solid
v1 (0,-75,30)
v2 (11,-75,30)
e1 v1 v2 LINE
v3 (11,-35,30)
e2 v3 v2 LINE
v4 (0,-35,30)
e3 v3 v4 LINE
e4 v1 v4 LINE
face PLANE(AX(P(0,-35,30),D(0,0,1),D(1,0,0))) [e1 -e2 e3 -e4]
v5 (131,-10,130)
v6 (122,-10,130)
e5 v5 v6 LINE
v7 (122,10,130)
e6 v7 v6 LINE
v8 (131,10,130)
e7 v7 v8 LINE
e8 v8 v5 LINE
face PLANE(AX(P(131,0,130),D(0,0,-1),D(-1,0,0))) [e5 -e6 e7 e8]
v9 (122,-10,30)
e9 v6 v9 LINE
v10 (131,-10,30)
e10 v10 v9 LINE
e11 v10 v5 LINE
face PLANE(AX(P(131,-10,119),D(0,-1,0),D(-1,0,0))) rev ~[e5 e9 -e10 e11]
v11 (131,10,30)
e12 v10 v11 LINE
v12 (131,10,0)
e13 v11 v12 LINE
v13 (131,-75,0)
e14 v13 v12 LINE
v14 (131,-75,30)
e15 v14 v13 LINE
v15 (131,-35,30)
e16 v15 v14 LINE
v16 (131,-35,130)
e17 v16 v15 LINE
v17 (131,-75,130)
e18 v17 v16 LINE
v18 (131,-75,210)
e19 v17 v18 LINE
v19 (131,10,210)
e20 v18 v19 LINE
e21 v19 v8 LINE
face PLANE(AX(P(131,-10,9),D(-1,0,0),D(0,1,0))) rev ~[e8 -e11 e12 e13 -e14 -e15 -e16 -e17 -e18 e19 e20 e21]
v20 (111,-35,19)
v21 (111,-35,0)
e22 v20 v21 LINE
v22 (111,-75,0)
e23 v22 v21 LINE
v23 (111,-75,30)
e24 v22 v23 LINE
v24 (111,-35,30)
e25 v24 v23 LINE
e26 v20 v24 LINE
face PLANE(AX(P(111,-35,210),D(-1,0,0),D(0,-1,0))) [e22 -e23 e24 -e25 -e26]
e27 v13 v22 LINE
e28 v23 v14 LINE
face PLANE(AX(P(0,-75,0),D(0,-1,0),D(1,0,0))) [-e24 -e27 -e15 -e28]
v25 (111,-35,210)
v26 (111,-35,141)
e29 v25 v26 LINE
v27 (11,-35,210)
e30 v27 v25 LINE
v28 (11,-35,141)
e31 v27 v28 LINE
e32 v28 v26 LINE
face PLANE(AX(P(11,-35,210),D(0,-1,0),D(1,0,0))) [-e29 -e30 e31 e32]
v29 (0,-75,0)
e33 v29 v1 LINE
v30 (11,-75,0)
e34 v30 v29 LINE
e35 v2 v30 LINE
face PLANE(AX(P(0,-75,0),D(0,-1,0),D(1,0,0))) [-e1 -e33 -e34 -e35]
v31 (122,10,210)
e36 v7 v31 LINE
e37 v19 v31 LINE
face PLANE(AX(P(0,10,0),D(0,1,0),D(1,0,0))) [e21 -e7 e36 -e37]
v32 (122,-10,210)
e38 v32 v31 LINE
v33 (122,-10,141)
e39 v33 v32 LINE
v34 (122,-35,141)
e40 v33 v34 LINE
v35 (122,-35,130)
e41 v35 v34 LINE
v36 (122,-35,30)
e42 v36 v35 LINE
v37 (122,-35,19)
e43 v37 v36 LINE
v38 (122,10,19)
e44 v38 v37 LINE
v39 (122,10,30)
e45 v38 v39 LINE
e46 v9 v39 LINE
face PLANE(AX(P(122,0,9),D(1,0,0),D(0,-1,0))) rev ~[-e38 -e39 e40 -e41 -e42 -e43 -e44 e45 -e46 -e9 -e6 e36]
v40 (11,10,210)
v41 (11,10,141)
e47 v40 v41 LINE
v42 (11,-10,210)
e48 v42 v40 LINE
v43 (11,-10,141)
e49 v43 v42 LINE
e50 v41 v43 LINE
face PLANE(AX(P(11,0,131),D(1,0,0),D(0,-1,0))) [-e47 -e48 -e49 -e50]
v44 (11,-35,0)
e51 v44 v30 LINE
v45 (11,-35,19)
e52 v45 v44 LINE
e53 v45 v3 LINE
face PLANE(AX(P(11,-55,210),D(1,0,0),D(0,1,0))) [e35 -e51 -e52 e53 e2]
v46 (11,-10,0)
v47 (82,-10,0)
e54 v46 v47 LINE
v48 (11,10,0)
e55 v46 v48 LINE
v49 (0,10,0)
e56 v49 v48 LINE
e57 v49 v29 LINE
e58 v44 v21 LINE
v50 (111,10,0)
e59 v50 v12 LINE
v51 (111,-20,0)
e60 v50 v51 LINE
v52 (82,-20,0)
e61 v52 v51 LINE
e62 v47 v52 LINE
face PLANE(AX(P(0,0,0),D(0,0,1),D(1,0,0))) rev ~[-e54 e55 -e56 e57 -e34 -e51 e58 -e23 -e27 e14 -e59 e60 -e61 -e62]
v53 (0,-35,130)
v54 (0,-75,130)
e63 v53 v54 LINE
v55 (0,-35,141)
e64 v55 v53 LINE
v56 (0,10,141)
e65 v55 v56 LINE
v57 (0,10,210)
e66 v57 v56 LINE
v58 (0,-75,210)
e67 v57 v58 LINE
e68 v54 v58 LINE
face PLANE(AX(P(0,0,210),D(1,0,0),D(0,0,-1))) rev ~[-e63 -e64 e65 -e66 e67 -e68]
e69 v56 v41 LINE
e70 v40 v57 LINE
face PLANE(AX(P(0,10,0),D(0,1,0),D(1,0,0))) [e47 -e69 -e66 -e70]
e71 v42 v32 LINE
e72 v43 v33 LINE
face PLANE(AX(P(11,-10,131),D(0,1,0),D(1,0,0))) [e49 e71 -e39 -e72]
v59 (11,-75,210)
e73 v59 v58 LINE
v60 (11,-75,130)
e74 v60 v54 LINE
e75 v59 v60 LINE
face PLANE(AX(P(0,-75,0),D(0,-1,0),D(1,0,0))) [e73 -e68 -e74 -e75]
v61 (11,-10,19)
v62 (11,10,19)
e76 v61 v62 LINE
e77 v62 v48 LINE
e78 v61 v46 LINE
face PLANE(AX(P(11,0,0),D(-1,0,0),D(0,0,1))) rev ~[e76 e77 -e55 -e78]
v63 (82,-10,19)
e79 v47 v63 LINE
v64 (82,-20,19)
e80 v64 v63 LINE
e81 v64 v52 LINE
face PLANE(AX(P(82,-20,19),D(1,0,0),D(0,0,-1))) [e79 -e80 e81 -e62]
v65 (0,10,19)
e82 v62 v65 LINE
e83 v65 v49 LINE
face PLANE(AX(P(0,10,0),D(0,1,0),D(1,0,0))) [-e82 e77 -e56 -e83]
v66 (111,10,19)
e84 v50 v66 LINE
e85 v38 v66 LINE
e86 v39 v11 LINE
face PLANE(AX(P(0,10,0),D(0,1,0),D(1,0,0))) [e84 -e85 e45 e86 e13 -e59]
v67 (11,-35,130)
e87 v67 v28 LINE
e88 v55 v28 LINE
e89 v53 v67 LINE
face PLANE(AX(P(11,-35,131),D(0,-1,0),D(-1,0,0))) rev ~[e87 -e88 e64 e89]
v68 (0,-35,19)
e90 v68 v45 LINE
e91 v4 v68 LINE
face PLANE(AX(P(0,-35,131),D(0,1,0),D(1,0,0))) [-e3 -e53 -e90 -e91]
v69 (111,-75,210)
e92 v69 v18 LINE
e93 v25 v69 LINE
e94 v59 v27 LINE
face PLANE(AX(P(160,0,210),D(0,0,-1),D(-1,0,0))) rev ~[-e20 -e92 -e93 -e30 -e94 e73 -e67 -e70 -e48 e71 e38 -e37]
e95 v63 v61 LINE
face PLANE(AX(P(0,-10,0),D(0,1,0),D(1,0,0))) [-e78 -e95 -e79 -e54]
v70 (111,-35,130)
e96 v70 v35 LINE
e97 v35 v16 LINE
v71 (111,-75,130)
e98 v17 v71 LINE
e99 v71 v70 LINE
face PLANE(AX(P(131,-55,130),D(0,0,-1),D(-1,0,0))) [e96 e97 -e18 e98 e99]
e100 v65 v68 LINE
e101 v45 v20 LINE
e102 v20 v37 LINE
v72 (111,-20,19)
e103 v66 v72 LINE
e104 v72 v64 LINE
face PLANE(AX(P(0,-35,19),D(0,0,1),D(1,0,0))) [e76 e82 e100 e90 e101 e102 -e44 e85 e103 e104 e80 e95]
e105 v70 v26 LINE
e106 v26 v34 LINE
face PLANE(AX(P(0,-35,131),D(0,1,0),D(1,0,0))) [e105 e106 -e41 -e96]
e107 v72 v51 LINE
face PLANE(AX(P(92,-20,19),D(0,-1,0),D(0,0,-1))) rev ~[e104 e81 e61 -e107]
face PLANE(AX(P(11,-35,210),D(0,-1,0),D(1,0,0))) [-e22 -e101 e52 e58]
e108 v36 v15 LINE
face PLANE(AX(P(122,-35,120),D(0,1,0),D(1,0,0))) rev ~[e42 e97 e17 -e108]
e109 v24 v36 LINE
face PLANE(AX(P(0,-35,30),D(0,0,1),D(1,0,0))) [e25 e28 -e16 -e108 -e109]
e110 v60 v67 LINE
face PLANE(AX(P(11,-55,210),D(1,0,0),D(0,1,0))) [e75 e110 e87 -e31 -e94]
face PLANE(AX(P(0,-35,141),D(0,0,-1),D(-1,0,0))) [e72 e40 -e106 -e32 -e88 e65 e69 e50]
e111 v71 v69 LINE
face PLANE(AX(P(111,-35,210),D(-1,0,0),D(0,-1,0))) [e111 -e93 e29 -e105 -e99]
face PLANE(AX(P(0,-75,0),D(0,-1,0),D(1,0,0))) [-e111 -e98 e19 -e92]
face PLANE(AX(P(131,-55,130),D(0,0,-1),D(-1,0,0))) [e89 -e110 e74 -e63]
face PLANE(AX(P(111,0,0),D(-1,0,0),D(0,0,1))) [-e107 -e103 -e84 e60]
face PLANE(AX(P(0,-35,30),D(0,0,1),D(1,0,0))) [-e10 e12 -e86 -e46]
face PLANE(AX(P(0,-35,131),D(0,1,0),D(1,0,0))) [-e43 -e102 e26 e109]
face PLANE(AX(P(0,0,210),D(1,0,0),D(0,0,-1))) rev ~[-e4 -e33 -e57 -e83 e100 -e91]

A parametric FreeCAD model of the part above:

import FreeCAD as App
import Part
import Sketcher
Q = App.Units.Quantity


def add_polygon(sketch, points):
    """Adds a closed chain of lines whose ends are joined by coincident constraints."""
    first, n = sketch.GeometryCount, len(points)
    for a, b in zip(points, points[1:] + points[:1]):
        sketch.addGeometry(Part.LineSegment(App.Vector(*a, 0), App.Vector(*b, 0)), False)
    for i in range(n):
        sketch.addConstraint(Sketcher.Constraint("Coincident", first + i, 2, first + (i + 1) % n, 1))

doc = App.newDocument("Part")
params = doc.addObject("Spreadsheet::Sheet", "Params")
for row, (alias, value) in enumerate([
    ("sketch1_width", "160 mm"),
    ("sketch1_height", "210 mm"),
    ("pad1_length", "55 mm"),
    ("sketch2_width", "10 mm"),
    ("sketch2_height", "122 mm"),
    ("pocket1_length", "122 mm"),
    ("sketch3_width", "55 mm"),
    ("sketch3_height", "210 mm"),
    ("pocket2_length", "29 mm"),
    ("sketch4_width", "122 mm"),
    ("pocket3_length", "25 mm"),
    ("sketch5_width", "100 mm"),
    ("pocket4_length", "20 mm"),
    ("sketch6_width", "11 mm"),
    ("sketch6_width2", "100 mm"),
    ("pocket5_length", "20 mm"),
    ("sketch7_width", "100 mm"),
    ("sketch7_width2", "9 mm"),
    ("sketch7_height", "110 mm"),
    ("pocket6_length", "10 mm"),
    ("sketch8_width", "9 mm"),
    ("sketch8_height", "10 mm"),
    ("pad2_length", "11 mm"),
    ("sketch9_width", "111 mm"),
    ("sketch9_height", "10 mm"),
    ("pocket7_length", "80 mm"),
    ("sketch10_width", "100 mm"),
    ("sketch10_height", "20 mm"),
    ("pocket8_length", "220 mm"),
    ("sketch11_height", "100 mm"),
    ("sketch11_width", "20 mm"),
    ("pocket9_length", "9 mm"),
    ("sketch12_width", "11 mm"),
    ("sketch12_width2", "122 mm"),
    ("sketch12_height", "35 mm"),
    ("sketch12_height2", "10 mm"),
    ("pad3_length", "10 mm"),
    ("sketch13_width", "11 mm"),
    ("sketch13_width2", "20 mm"),
    ("sketch13_width3", "9 mm"),
    ("sketch13_height", "10 mm"),
    ("pad4_length", "10 mm"),
    ("sketch14_width", "11 mm"),
    ("sketch14_width2", "111 mm"),
    ("sketch14_height", "10 mm"),
    ("sketch14_height2", "25 mm"),
    ("pocket10_length", "10 mm"),
    ("sketch15_width", "20 mm"),
    ("sketch15_width2", "11 mm"),
    ("pocket11_length", "10 mm"),
    ("sketch16_width", "9 mm"),
    ("sketch16_height", "10 mm"),
    ("pocket12_length", "11 mm"),
    ("sketch17_width", "19 mm"),
    ("sketch17_height", "10 mm"),
    ("pocket13_length", "19 mm"),
    ("sketch18_width", "10 mm"),
    ("sketch18_height", "19 mm"),
    ("pocket14_length", "10 mm"),
    ("sketch19_width", "11 mm"),
    ("sketch19_width2", "20 mm"),
    ("sketch19_height", "80 mm"),
    ("sketch19_height2", "30 mm"),
    ("pad5_length", "20 mm"),
    ("sketch20_width", "11 mm"),
    ("sketch20_width2", "9 mm"),
    ("sketch20_height", "19 mm"),
    ("sketch20_height2", "80 mm"),
    ("sketch20_height3", "69 mm"),
    ("pad6_length", "10 mm"),
], start=1):
    params.set(f"A{row}", alias)
    params.set(f"B{row}", "=" + value)
    params.setAlias(f"B{row}", alias)

body = doc.addObject("PartDesign::Body", "Body")

# Sketch on XZ plane
sketch1 = body.newObject("Sketcher::SketchObject", "Sketch")
sketch1.AttachmentSupport = (doc.getObject("XZ_Plane"), [""])
sketch1.MapMode = "FlatFace"
add_polygon(sketch1, [(160, 0), (0, 0), (0, 210), (160, 210)])  # lines 0-3
sketch1.addConstraint([
    Sketcher.Constraint("Horizontal", 0),
    Sketcher.Constraint("Vertical", 1),
    Sketcher.Constraint("Horizontal", 2),
    Sketcher.Constraint("Vertical", 3),
    Sketcher.Constraint("Coincident", 0, 2, -1, 1),
    Sketcher.Constraint("DistanceX", 0, 2, 0, 1, Q("160 mm")),
    Sketcher.Constraint("DistanceY", 1, 1, 1, 2, Q("210 mm")),
])
sketch1.setExpression("Constraints[9]", "Params.sketch1_width")
sketch1.setExpression("Constraints[10]", "Params.sketch1_height")
pad1 = body.newObject("PartDesign::Pad", "Pad")
pad1.Profile = sketch1
pad1.setExpression("Length", "Params.pad1_length")

# Sketch on YZ plane
sketch2 = body.newObject("Sketcher::SketchObject", "Sketch001")
sketch2.AttachmentSupport = (doc.getObject("YZ_Plane"), [""])
sketch2.MapMode = "FlatFace"
add_polygon(sketch2, [(0, 131), (0, 9), (-10, 9), (-10, 131)])  # lines 0-3
sketch2.addConstraint([
    Sketcher.Constraint("Vertical", 0),
    Sketcher.Constraint("Horizontal", 1),
    Sketcher.Constraint("Vertical", 2),
    Sketcher.Constraint("Horizontal", 3),
    Sketcher.Constraint("PointOnObject", 0, 2, -2),
    Sketcher.Constraint("DistanceX", 1, 2, 1, 1, Q("10 mm")),
    Sketcher.Constraint("DistanceY", 0, 2, 0, 1, Q("122 mm")),
    Sketcher.Constraint("DistanceY", -1, 1, 0, 2, Q("9 mm")),
])
sketch2.setExpression("Constraints[9]", "Params.sketch2_width")
sketch2.setExpression("Constraints[10]", "Params.sketch2_height")
pocket1 = body.newObject("PartDesign::Pocket", "Pocket")
pocket1.Profile = sketch2
pocket1.setExpression("Length", "Params.pocket1_length")
pocket1.Reversed = True

# Sketch on YZ plane
sketch3 = body.newObject("Sketcher::SketchObject", "Sketch002")
sketch3.AttachmentSupport = (doc.getObject("YZ_Plane"), [""])
sketch3.MapMode = "FlatFace"
sketch3.AttachmentOffset = App.Placement(App.Vector(0, 0, 160), App.Rotation())
add_polygon(sketch3, [(-55, 0), (0, 0), (0, 210), (-55, 210)])  # lines 0-3
sketch3.addConstraint([
    Sketcher.Constraint("Horizontal", 0),
    Sketcher.Constraint("Vertical", 1),
    Sketcher.Constraint("Horizontal", 2),
    Sketcher.Constraint("Vertical", 3),
    Sketcher.Constraint("Coincident", 0, 2, -1, 1),
    Sketcher.Constraint("DistanceX", 0, 1, 0, 2, Q("55 mm")),
    Sketcher.Constraint("DistanceY", 1, 1, 1, 2, Q("210 mm")),
])
sketch3.setExpression("Constraints[9]", "Params.sketch3_width")
sketch3.setExpression("Constraints[10]", "Params.sketch3_height")
pocket2 = body.newObject("PartDesign::Pocket", "Pocket001")
pocket2.Profile = sketch3
pocket2.setExpression("Length", "Params.pocket2_length")

# Sketch on XZ plane
sketch4 = body.newObject("Sketcher::SketchObject", "Sketch003")
sketch4.AttachmentSupport = (doc.getObject("XZ_Plane"), [""])
sketch4.MapMode = "FlatFace"
sketch4.AttachmentOffset = App.Placement(App.Vector(0, 0, 10), App.Rotation())
add_polygon(sketch4, [(122, 131), (122, 9), (0, 9), (0, 131)])  # lines 0-3
sketch4.addConstraint([
    Sketcher.Constraint("Vertical", 0),
    Sketcher.Constraint("Horizontal", 1),
    Sketcher.Constraint("Vertical", 2),
    Sketcher.Constraint("Horizontal", 3),
    Sketcher.Constraint("PointOnObject", 1, 2, -2),
    Sketcher.Constraint("Equal", 3, 0),
    Sketcher.Constraint("DistanceX", 1, 2, 1, 1, Q("122 mm")),
    Sketcher.Constraint("DistanceY", -1, 1, 0, 2, Q("9 mm")),
])
sketch4.setExpression("Constraints[10]", "Params.sketch4_width")
pocket3 = body.newObject("PartDesign::Pocket", "Pocket002")
pocket3.Profile = sketch4
pocket3.setExpression("Length", "Params.pocket3_length")
pocket3.Reversed = True

# Sketch on XZ plane
sketch5 = body.newObject("Sketcher::SketchObject", "Sketch004")
sketch5.AttachmentSupport = (doc.getObject("XZ_Plane"), [""])
sketch5.MapMode = "FlatFace"
sketch5.AttachmentOffset = App.Placement(App.Vector(0, 0, 35), App.Rotation())
add_polygon(sketch5, [(111, 20), (11, 20), (11, 120), (111, 120)])  # lines 0-3
sketch5.addConstraint([
    Sketcher.Constraint("Horizontal", 0),
    Sketcher.Constraint("Vertical", 1),
    Sketcher.Constraint("Horizontal", 2),
    Sketcher.Constraint("Vertical", 3),
    Sketcher.Constraint("Equal", 2, 1),
    Sketcher.Constraint("DistanceX", 0, 2, 0, 1, Q("100 mm")),
    Sketcher.Constraint("DistanceX", -1, 1, 0, 2, Q("11 mm")),
    Sketcher.Constraint("DistanceY", -1, 1, 0, 2, Q("20 mm")),
])
sketch5.setExpression("Constraints[9]", "Params.sketch5_width")
pocket4 = body.newObject("PartDesign::Pocket", "Pocket003")
pocket4.Profile = sketch5
pocket4.setExpression("Length", "Params.pocket4_length")
pocket4.Reversed = True

# Sketch on XZ plane
sketch6 = body.newObject("Sketcher::SketchObject", "Sketch005")
sketch6.AttachmentSupport = (doc.getObject("XZ_Plane"), [""])
sketch6.MapMode = "FlatFace"
sketch6.AttachmentOffset = App.Placement(App.Vector(0, 0, 35), App.Rotation())
add_polygon(sketch6, [(0, 120), (11, 120), (11, 20), (0, 20)])  # lines 0-3
add_polygon(sketch6, [(111, 120), (11, 120), (11, 131), (111, 131)])  # lines 4-7
add_polygon(sketch6, [(11, 9), (11, 20), (111, 20), (111, 9)])  # lines 8-11
add_polygon(sketch6, [(111, 20), (111, 120), (122, 120), (122, 20)])  # lines 12-15
sketch6.addConstraint([
    Sketcher.Constraint("Horizontal", 0),
    Sketcher.Constraint("Vertical", 1),
    Sketcher.Constraint("Horizontal", 2),
    Sketcher.Constraint("Vertical", 3),
    Sketcher.Constraint("Horizontal", 4),
    Sketcher.Constraint("Vertical", 5),
    Sketcher.Constraint("Horizontal", 6),
    Sketcher.Constraint("Vertical", 7),
    Sketcher.Constraint("Vertical", 8),
    Sketcher.Constraint("Horizontal", 9),
    Sketcher.Constraint("Vertical", 10),
    Sketcher.Constraint("Horizontal", 11),
    Sketcher.Constraint("Vertical", 12),
    Sketcher.Constraint("Horizontal", 13),
    Sketcher.Constraint("Vertical", 14),
    Sketcher.Constraint("Horizontal", 15),
    Sketcher.Constraint("Coincident", 4, 2, 0, 2),
    Sketcher.Constraint("Coincident", 8, 2, 1, 2),
    Sketcher.Constraint("Coincident", 12, 2, 7, 2),
    Sketcher.Constraint("Coincident", 15, 2, 9, 2),
    Sketcher.Constraint("PointOnObject", 2, 2, -2),
    Sketcher.Constraint("Equal", 2, 13),
    Sketcher.Constraint("Equal", 11, 1),
    Sketcher.Constraint("Equal", 15, 5),
    Sketcher.Constraint("Equal", 7, 8),
    Sketcher.Constraint("DistanceX", 0, 1, 0, 2, Q("11 mm")),
    Sketcher.Constraint("DistanceX", 4, 2, 4, 1, Q("100 mm")),
    Sketcher.Constraint("DistanceY", -1, 1, 0, 2, Q("120 mm")),
])
sketch6.setExpression("Constraints[41]", "Params.sketch6_width")
sketch6.setExpression("Constraints[42]", "Params.sketch6_width2")
pocket5 = body.newObject("PartDesign::Pocket", "Pocket004")
pocket5.Profile = sketch6
pocket5.setExpression("Length", "Params.pocket5_length")
pocket5.Reversed = True

# Sketch on XZ plane
sketch7 = body.newObject("Sketcher::SketchObject", "Sketch006")
sketch7.AttachmentSupport = (doc.getObject("XZ_Plane"), [""])
sketch7.MapMode = "FlatFace"
add_polygon(sketch7, [(111, 0), (11, 0), (11, 9), (111, 9)])  # lines 0-3
add_polygon(sketch7, [(131, 119), (131, 9), (122, 9), (122, 119)])  # lines 4-7
sketch7.addConstraint([
    Sketcher.Constraint("Horizontal", 0),
    Sketcher.Constraint("Vertical", 1),
    Sketcher.Constraint("Horizontal", 2),
    Sketcher.Constraint("Vertical", 3),
    Sketcher.Constraint("Vertical", 4),
    Sketcher.Constraint("Horizontal", 5),
    Sketcher.Constraint("Vertical", 6),
    Sketcher.Constraint("Horizontal", 7),
    Sketcher.Constraint("PointOnObject", 0, 2, -1),
    Sketcher.Constraint("Horizontal", 2, 2, 4, 2),
    Sketcher.Constraint("Equal", 7, 1),
    Sketcher.Constraint("DistanceX", 0, 2, 0, 1, Q("100 mm")),
    Sketcher.Constraint("DistanceX", 5, 2, 5, 1, Q("9 mm")),
    Sketcher.Constraint("DistanceY", 4, 2, 4, 1, Q("110 mm")),
    Sketcher.Constraint("DistanceX", 2, 2, 4, 2, Q("20 mm")),
    Sketcher.Constraint("DistanceX", -1, 1, 0, 2, Q("11 mm")),
])
sketch7.setExpression("Constraints[19]", "Params.sketch7_width")
sketch7.setExpression("Constraints[20]", "Params.sketch7_width2")
sketch7.setExpression("Constraints[21]", "Params.sketch7_height")
pocket6 = body.newObject("PartDesign::Pocket", "Pocket005")
pocket6.Profile = sketch7
pocket6.setExpression("Length", "Params.pocket6_length")
pocket6.Reversed = True

# Sketch on XY plane
sketch8 = body.newObject("Sketcher::SketchObject", "Sketch007")
sketch8.AttachmentSupport = (doc.getObject("XY_Plane"), [""])
sketch8.MapMode = "FlatFace"
sketch8.AttachmentOffset = App.Placement(App.Vector(0, 0, 9), App.Rotation())
add_polygon(sketch8, [(131, 0), (122, 0), (122, -10), (131, -10)])  # lines 0-3
sketch8.addConstraint([
    Sketcher.Constraint("Horizontal", 0),
    Sketcher.Constraint("Vertical", 1),
    Sketcher.Constraint("Horizontal", 2),
    Sketcher.Constraint("Vertical", 3),
    Sketcher.Constraint("PointOnObject", 0, 2, -1),
    Sketcher.Constraint("DistanceX", 0, 2, 0, 1, Q("9 mm")),
    Sketcher.Constraint("DistanceY", 1, 2, 1, 1, Q("10 mm")),
    Sketcher.Constraint("DistanceX", -1, 1, 0, 2, Q("122 mm")),
])
sketch8.setExpression("Constraints[9]", "Params.sketch8_width")
sketch8.setExpression("Constraints[10]", "Params.sketch8_height")
pad2 = body.newObject("PartDesign::Pad", "Pad001")
pad2.Profile = sketch8
pad2.setExpression("Length", "Params.pad2_length")

# Sketch on XY plane
sketch9 = body.newObject("Sketcher::SketchObject", "Sketch008")
sketch9.AttachmentSupport = (doc.getObject("XY_Plane"), [""])
sketch9.MapMode = "FlatFace"
sketch9.AttachmentOffset = App.Placement(App.Vector(0, 0, 131), App.Rotation())
add_polygon(sketch9, [(11, 0), (122, 0), (122, -10), (11, -10)])  # lines 0-3
sketch9.addConstraint([
    Sketcher.Constraint("Horizontal", 0),
    Sketcher.Constraint("Vertical", 1),
    Sketcher.Constraint("Horizontal", 2),
    Sketcher.Constraint("Vertical", 3),
    Sketcher.Constraint("PointOnObject", 0, 2, -1),
    Sketcher.Constraint("DistanceX", 0, 1, 0, 2, Q("111 mm")),
    Sketcher.Constraint("DistanceY", 1, 2, 1, 1, Q("10 mm")),
    Sketcher.Constraint("DistanceX", -1, 1, 0, 2, Q("122 mm")),
])
sketch9.setExpression("Constraints[9]", "Params.sketch9_width")
sketch9.setExpression("Constraints[10]", "Params.sketch9_height")
pocket7 = body.newObject("PartDesign::Pocket", "Pocket006")
pocket7.Profile = sketch9
pocket7.setExpression("Length", "Params.pocket7_length")
pocket7.Reversed = True

# Sketch on XY plane
sketch10 = body.newObject("Sketcher::SketchObject", "Sketch009")
sketch10.AttachmentSupport = (doc.getObject("XY_Plane"), [""])
sketch10.MapMode = "FlatFace"
sketch10.AttachmentOffset = App.Placement(App.Vector(0, 0, 210), App.Rotation())
add_polygon(sketch10, [(11, -55), (111, -55), (111, -35), (11, -35)])  # lines 0-3
sketch10.addConstraint([
    Sketcher.Constraint("Horizontal", 0),
    Sketcher.Constraint("Vertical", 1),
    Sketcher.Constraint("Horizontal", 2),
    Sketcher.Constraint("Vertical", 3),
    Sketcher.Constraint("DistanceX", 0, 1, 0, 2, Q("100 mm")),
    Sketcher.Constraint("DistanceY", 1, 1, 1, 2, Q("20 mm")),
    Sketcher.Constraint("DistanceX", -1, 1, 0, 2, Q("111 mm")),
    Sketcher.Constraint("DistanceY", 0, 2, -1, 1, Q("55 mm")),
])
sketch10.setExpression("Constraints[8]", "Params.sketch10_width")
sketch10.setExpression("Constraints[9]", "Params.sketch10_height")
pocket8 = body.newObject("PartDesign::Pocket", "Pocket007")
pocket8.Profile = sketch10
pocket8.setExpression("Length", "Params.pocket8_length")

# Sketch on YZ plane
sketch11 = body.newObject("Sketcher::SketchObject", "Sketch010")
sketch11.AttachmentSupport = (doc.getObject("YZ_Plane"), [""])
sketch11.MapMode = "FlatFace"
sketch11.AttachmentOffset = App.Placement(App.Vector(0, 0, 122), App.Rotation())
add_polygon(sketch11, [(-35, 20), (-55, 20), (-55, 120), (-35, 120)])  # lines 0-3
sketch11.addConstraint([
    Sketcher.Constraint("Horizontal", 0),
    Sketcher.Constraint("Vertical", 1),
    Sketcher.Constraint("Horizontal", 2),
    Sketcher.Constraint("Vertical", 3),
    Sketcher.Constraint("DistanceY", 1, 1, 1, 2, Q("100 mm")),
    Sketcher.Constraint("DistanceX", 0, 2, 0, 1, Q("20 mm")),
    Sketcher.Constraint("DistanceX", 0, 2, -1, 1, Q("55 mm")),
    Sketcher.Constraint("DistanceY", -1, 1, 0, 2, Q("20 mm")),
])
sketch11.setExpression("Constraints[8]", "Params.sketch11_height")
sketch11.setExpression("Constraints[9]", "Params.sketch11_width")
pocket9 = body.newObject("PartDesign::Pocket", "Pocket008")
pocket9.Profile = sketch11
pocket9.setExpression("Length", "Params.pocket9_length")
pocket9.Reversed = True

# Sketch on XY plane
sketch12 = body.newObject("Sketcher::SketchObject", "Sketch011")
sketch12.AttachmentSupport = (doc.getObject("XY_Plane"), [""])
sketch12.MapMode = "FlatFace"
sketch12.AttachmentOffset = App.Placement(App.Vector(0, 0, 9), App.Rotation())
add_polygon(sketch12, [(11, 0), (0, 0), (0, -35), (122, -35), (122, 0), (111, 0), (111, -10), (11, -10)])  # lines 0-7
sketch12.addConstraint([
    Sketcher.Constraint("Horizontal", 0),
    Sketcher.Constraint("Vertical", 1),
    Sketcher.Constraint("Horizontal", 2),
    Sketcher.Constraint("Vertical", 3),
    Sketcher.Constraint("Horizontal", 4),
    Sketcher.Constraint("Vertical", 5),
    Sketcher.Constraint("Horizontal", 6),
    Sketcher.Constraint("Vertical", 7),
    Sketcher.Constraint("Coincident", 0, 2, -1, 1),
    Sketcher.Constraint("PointOnObject", 3, 2, -1),
    Sketcher.Constraint("Equal", 0, 4),
    Sketcher.Constraint("DistanceX", 0, 2, 0, 1, Q("11 mm")),
    Sketcher.Constraint("DistanceX", 2, 1, 2, 2, Q("122 mm")),
    Sketcher.Constraint("DistanceY", 1, 2, 1, 1, Q("35 mm")),
    Sketcher.Constraint("DistanceY", 5, 2, 5, 1, Q("10 mm")),
])
sketch12.setExpression("Constraints[19]", "Params.sketch12_width")
sketch12.setExpression("Constraints[20]", "Params.sketch12_width2")
sketch12.setExpression("Constraints[21]", "Params.sketch12_height")
sketch12.setExpression("Constraints[22]", "Params.sketch12_height2")
pad3 = body.newObject("PartDesign::Pad", "Pad002")
pad3.Profile = sketch12
pad3.setExpression("Length", "Params.pad3_length")

# Sketch on XY plane
sketch13 = body.newObject("Sketcher::SketchObject", "Sketch012")
sketch13.AttachmentSupport = (doc.getObject("XY_Plane"), [""])
sketch13.MapMode = "FlatFace"
sketch13.AttachmentOffset = App.Placement(App.Vector(0, 0, 20), App.Rotation())
add_polygon(sketch13, [(11, -55), (11, -35), (0, -35), (0, -55)])  # lines 0-3
add_polygon(sketch13, [(131, -55), (131, -35), (111, -35), (111, -55)])  # lines 4-7
add_polygon(sketch13, [(131, 0), (122, 0), (122, -10), (131, -10)])  # lines 8-11
sketch13.addConstraint([
    Sketcher.Constraint("Vertical", 0),
    Sketcher.Constraint("Horizontal", 1),
    Sketcher.Constraint("Vertical", 2),
    Sketcher.Constraint("Horizontal", 3),
    Sketcher.Constraint("Vertical", 4),
    Sketcher.Constraint("Horizontal", 5),
    Sketcher.Constraint("Vertical", 6),
    Sketcher.Constraint("Horizontal", 7),
    Sketcher.Constraint("Horizontal", 8),
    Sketcher.Constraint("Vertical", 9),
    Sketcher.Constraint("Horizontal", 10),
    Sketcher.Constraint("Vertical", 11),
    Sketcher.Constraint("PointOnObject", 1, 2, -2),
    Sketcher.Constraint("PointOnObject", 8, 2, -1),
    Sketcher.Constraint("Horizontal", 1, 2, 4, 2),
    Sketcher.Constraint("Horizontal", 3, 2, 6, 2),
    Sketcher.Constraint("Vertical", 7, 2, 10, 2),
    Sketcher.Constraint("Equal", 7, 0),
    Sketcher.Constraint("DistanceX", 1, 2, 1, 1, Q("11 mm")),
    Sketcher.Constraint("DistanceX", 5, 2, 5, 1, Q("20 mm")),
    Sketcher.Constraint("DistanceX", 8, 2, 8, 1, Q("9 mm")),
    Sketcher.Constraint("DistanceY", 9, 2, 9, 1, Q("10 mm")),
    Sketcher.Constraint("DistanceY", 0, 2, -1, 1, Q("35 mm")),
    Sketcher.Constraint("DistanceX", -1, 1, 4, 2, Q("131 mm")),
])
sketch13.setExpression("Constraints[30]", "Params.sketch13_width")
sketch13.setExpression("Constraints[31]", "Params.sketch13_width2")
sketch13.setExpression("Constraints[32]", "Params.sketch13_width3")
sketch13.setExpression("Constraints[33]", "Params.sketch13_height")
pad4 = body.newObject("PartDesign::Pad", "Pad003")
pad4.Profile = sketch13
pad4.setExpression("Length", "Params.pad4_length")

# Sketch on XY plane
sketch14 = body.newObject("Sketcher::SketchObject", "Sketch013")
sketch14.AttachmentSupport = (doc.getObject("XY_Plane"), [""])
sketch14.MapMode = "FlatFace"
sketch14.AttachmentOffset = App.Placement(App.Vector(0, 0, 131), App.Rotation())
add_polygon(sketch14, [(0, 0), (11, 0), (11, -10), (122, -10), (122, -35), (0, -35)])  # lines 0-5
sketch14.addConstraint([
    Sketcher.Constraint("Horizontal", 0),
    Sketcher.Constraint("Vertical", 1),
    Sketcher.Constraint("Horizontal", 2),
    Sketcher.Constraint("Vertical", 3),
    Sketcher.Constraint("Horizontal", 4),
    Sketcher.Constraint("Vertical", 5),
    Sketcher.Constraint("Coincident", 5, 2, -1, 1),
    Sketcher.Constraint("DistanceX", 0, 1, 0, 2, Q("11 mm")),
    Sketcher.Constraint("DistanceX", 2, 1, 2, 2, Q("111 mm")),
    Sketcher.Constraint("DistanceY", 1, 2, 1, 1, Q("10 mm")),
    Sketcher.Constraint("DistanceY", 3, 2, 3, 1, Q("25 mm")),
])
sketch14.setExpression("Constraints[13]", "Params.sketch14_width")
sketch14.setExpression("Constraints[14]", "Params.sketch14_width2")
sketch14.setExpression("Constraints[15]", "Params.sketch14_height")
sketch14.setExpression("Constraints[16]", "Params.sketch14_height2")
pocket10 = body.newObject("PartDesign::Pocket", "Pocket009")
pocket10.Profile = sketch14
pocket10.setExpression("Length", "Params.pocket10_length")
pocket10.Reversed = True

# Sketch on XY plane
sketch15 = body.newObject("Sketcher::SketchObject", "Sketch014")
sketch15.AttachmentSupport = (doc.getObject("XY_Plane"), [""])
sketch15.MapMode = "FlatFace"
sketch15.AttachmentOffset = App.Placement(App.Vector(0, 0, 120), App.Rotation())
add_polygon(sketch15, [(131, -35), (131, -55), (111, -55), (111, -35)])  # lines 0-3
add_polygon(sketch15, [(0, -35), (11, -35), (11, -55), (0, -55)])  # lines 4-7
sketch15.addConstraint([
    Sketcher.Constraint("Vertical", 0),
    Sketcher.Constraint("Horizontal", 1),
    Sketcher.Constraint("Vertical", 2),
    Sketcher.Constraint("Horizontal", 3),
    Sketcher.Constraint("Horizontal", 4),
    Sketcher.Constraint("Vertical", 5),
    Sketcher.Constraint("Horizontal", 6),
    Sketcher.Constraint("Vertical", 7),
    Sketcher.Constraint("PointOnObject", 6, 2, -2),
    Sketcher.Constraint("Horizontal", 3, 2, 4, 2),
    Sketcher.Constraint("Horizontal", 1, 2, 5, 2),
    Sketcher.Constraint("Equal", 3, 0),
    Sketcher.Constraint("DistanceX", 1, 2, 1, 1, Q("20 mm")),
    Sketcher.Constraint("DistanceX", 4, 1, 4, 2, Q("11 mm")),
    Sketcher.Constraint("DistanceX", -1, 1, 0, 2, Q("131 mm")),
    Sketcher.Constraint("DistanceY", 0, 2, -1, 1, Q("55 mm")),
])
sketch15.setExpression("Constraints[20]", "Params.sketch15_width")
sketch15.setExpression("Constraints[21]", "Params.sketch15_width2")
pocket11 = body.newObject("PartDesign::Pocket", "Pocket010")
pocket11.Profile = sketch15
pocket11.setExpression("Length", "Params.pocket11_length")
pocket11.Reversed = True

# Sketch on XY plane
sketch16 = body.newObject("Sketcher::SketchObject", "Sketch015")
sketch16.AttachmentSupport = (doc.getObject("XY_Plane"), [""])
sketch16.MapMode = "FlatFace"
sketch16.AttachmentOffset = App.Placement(App.Vector(0, 0, 119), App.Rotation())
add_polygon(sketch16, [(131, 0), (131, -10), (122, -10), (122, 0)])  # lines 0-3
sketch16.addConstraint([
    Sketcher.Constraint("Vertical", 0),
    Sketcher.Constraint("Horizontal", 1),
    Sketcher.Constraint("Vertical", 2),
    Sketcher.Constraint("Horizontal", 3),
    Sketcher.Constraint("PointOnObject", 2, 2, -1),
    Sketcher.Constraint("DistanceX", 1, 2, 1, 1, Q("9 mm")),
    Sketcher.Constraint("DistanceY", 0, 2, 0, 1, Q("10 mm")),
    Sketcher.Constraint("DistanceX", -1, 1, 0, 2, Q("131 mm")),
])
sketch16.setExpression("Constraints[9]", "Params.sketch16_width")
sketch16.setExpression("Constraints[10]", "Params.sketch16_height")
pocket12 = body.newObject("PartDesign::Pocket", "Pocket011")
pocket12.Profile = sketch16
pocket12.setExpression("Length", "Params.pocket12_length")
pocket12.Reversed = True

# Sketch on XY plane
sketch17 = body.newObject("Sketcher::SketchObject", "Sketch016")
sketch17.AttachmentSupport = (doc.getObject("XY_Plane"), [""])
sketch17.MapMode = "FlatFace"
sketch17.AttachmentOffset = App.Placement(App.Vector(0, 0, 19), App.Rotation())
add_polygon(sketch17, [(111, -10), (92, -10), (92, -20), (111, -20)])  # lines 0-3
sketch17.addConstraint([
    Sketcher.Constraint("Horizontal", 0),
    Sketcher.Constraint("Vertical", 1),
    Sketcher.Constraint("Horizontal", 2),
    Sketcher.Constraint("Vertical", 3),
    Sketcher.Constraint("DistanceX", 0, 2, 0, 1, Q("19 mm")),
    Sketcher.Constraint("DistanceY", 1, 2, 1, 1, Q("10 mm")),
    Sketcher.Constraint("DistanceY", 0, 2, -1, 1, Q("10 mm")),
    Sketcher.Constraint("DistanceX", -1, 1, 0, 2, Q("92 mm")),
])
sketch17.setExpression("Constraints[8]", "Params.sketch17_width")
sketch17.setExpression("Constraints[9]", "Params.sketch17_height")
pocket13 = body.newObject("PartDesign::Pocket", "Pocket012")
pocket13.Profile = sketch17
pocket13.setExpression("Length", "Params.pocket13_length")

# Sketch on YZ plane
sketch18 = body.newObject("Sketcher::SketchObject", "Sketch017")
sketch18.AttachmentSupport = (doc.getObject("YZ_Plane"), [""])
sketch18.MapMode = "FlatFace"
sketch18.AttachmentOffset = App.Placement(App.Vector(0, 0, 92), App.Rotation())
add_polygon(sketch18, [(-10, 19), (-20, 19), (-20, 0), (-10, 0)])  # lines 0-3
sketch18.addConstraint([
    Sketcher.Constraint("Horizontal", 0),
    Sketcher.Constraint("Vertical", 1),
    Sketcher.Constraint("Horizontal", 2),
    Sketcher.Constraint("Vertical", 3),
    Sketcher.Constraint("PointOnObject", 1, 2, -1),
    Sketcher.Constraint("DistanceX", 0, 2, 0, 1, Q("10 mm")),
    Sketcher.Constraint("DistanceY", 1, 2, 1, 1, Q("19 mm")),
    Sketcher.Constraint("DistanceX", 0, 2, -1, 1, Q("20 mm")),
])
sketch18.setExpression("Constraints[9]", "Params.sketch18_width")
sketch18.setExpression("Constraints[10]", "Params.sketch18_height")
pocket14 = body.newObject("PartDesign::Pocket", "Pocket013")
pocket14.Profile = sketch18
pocket14.setExpression("Length", "Params.pocket14_length")

# Sketch on XZ plane
sketch19 = body.newObject("Sketcher::SketchObject", "Sketch018")
sketch19.AttachmentSupport = (doc.getObject("XZ_Plane"), [""])
sketch19.MapMode = "FlatFace"
sketch19.AttachmentOffset = App.Placement(App.Vector(0, 0, 55), App.Rotation())
add_polygon(sketch19, [(11, 130), (11, 210), (0, 210), (0, 130)])  # lines 0-3
add_polygon(sketch19, [(131, 210), (111, 210), (111, 130), (131, 130)])  # lines 4-7
add_polygon(sketch19, [(11, 30), (0, 30), (0, 0), (11, 0)])  # lines 8-11
add_polygon(sketch19, [(131, 0), (131, 30), (111, 30), (111, 0)])  # lines 12-15
sketch19.addConstraint([
    Sketcher.Constraint("Vertical", 0),
    Sketcher.Constraint("Horizontal", 1),
    Sketcher.Constraint("Vertical", 2),
    Sketcher.Constraint("Horizontal", 3),
    Sketcher.Constraint("Horizontal", 4),
    Sketcher.Constraint("Vertical", 5),
    Sketcher.Constraint("Horizontal", 6),
    Sketcher.Constraint("Vertical", 7),
    Sketcher.Constraint("Horizontal", 8),
    Sketcher.Constraint("Vertical", 9),
    Sketcher.Constraint("Horizontal", 10),
    Sketcher.Constraint("Vertical", 11),
    Sketcher.Constraint("Vertical", 12),
    Sketcher.Constraint("Horizontal", 13),
    Sketcher.Constraint("Vertical", 14),
    Sketcher.Constraint("Horizontal", 15),
    Sketcher.Constraint("Coincident", 9, 2, -1, 1),
    Sketcher.Constraint("PointOnObject", 1, 2, -2),
    Sketcher.Constraint("PointOnObject", 14, 2, -1),
    Sketcher.Constraint("Horizontal", 1, 2, 4, 2),
    Sketcher.Constraint("Horizontal", 3, 2, 5, 2),
    Sketcher.Constraint("Horizontal", 11, 2, 12, 2),
    Sketcher.Constraint("Vertical", 3, 2, 10, 2),
    Sketcher.Constraint("Vertical", 7, 2, 12, 2),
    Sketcher.Constraint("Vertical", 5, 2, 13, 2),
    Sketcher.Constraint("DistanceX", 1, 2, 1, 1, Q("11 mm")),
    Sketcher.Constraint("DistanceX", 4, 2, 4, 1, Q("20 mm")),
    Sketcher.Constraint("DistanceY", 0, 1, 0, 2, Q("80 mm")),
    Sketcher.Constraint("DistanceY", 9, 2, 9, 1, Q("30 mm")),
    Sketcher.Constraint("DistanceY", -1, 1, 0, 2, Q("210 mm")),
    Sketcher.Constraint("DistanceX", -1, 1, 4, 2, Q("111 mm")),
])
sketch19.setExpression("Constraints[41]", "Params.sketch19_width")
sketch19.setExpression("Constraints[42]", "Params.sketch19_width2")
sketch19.setExpression("Constraints[43]", "Params.sketch19_height")
sketch19.setExpression("Constraints[44]", "Params.sketch19_height2")
pad5 = body.newObject("PartDesign::Pad", "Pad004")
pad5.Profile = sketch19
pad5.setExpression("Length", "Params.pad5_length")

# Sketch on XZ plane
sketch20 = body.newObject("Sketcher::SketchObject", "Sketch019")
sketch20.AttachmentSupport = (doc.getObject("XZ_Plane"), [""])
sketch20.MapMode = "FlatFace"
add_polygon(sketch20, [(11, 0), (0, 0), (0, 19), (11, 19)])  # lines 0-3
add_polygon(sketch20, [(111, 0), (111, 19), (122, 19), (122, 30), (131, 30), (131, 0)])  # lines 4-9
add_polygon(sketch20, [(131, 130), (122, 130), (122, 210), (131, 210)])  # lines 10-13
add_polygon(sketch20, [(0, 210), (11, 210), (11, 141), (0, 141)])  # lines 14-17
sketch20.addConstraint([
    Sketcher.Constraint("Horizontal", 0),
    Sketcher.Constraint("Vertical", 1),
    Sketcher.Constraint("Horizontal", 2),
    Sketcher.Constraint("Vertical", 3),
    Sketcher.Constraint("Vertical", 4),
    Sketcher.Constraint("Horizontal", 5),
    Sketcher.Constraint("Vertical", 6),
    Sketcher.Constraint("Horizontal", 7),
    Sketcher.Constraint("Vertical", 8),
    Sketcher.Constraint("Horizontal", 9),
    Sketcher.Constraint("Horizontal", 10),
    Sketcher.Constraint("Vertical", 11),
    Sketcher.Constraint("Horizontal", 12),
    Sketcher.Constraint("Vertical", 13),
    Sketcher.Constraint("Horizontal", 14),
    Sketcher.Constraint("Vertical", 15),
    Sketcher.Constraint("Horizontal", 16),
    Sketcher.Constraint("Vertical", 17),
    Sketcher.Constraint("Coincident", 0, 2, -1, 1),
    Sketcher.Constraint("PointOnObject", 8, 2, -1),
    Sketcher.Constraint("PointOnObject", 16, 2, -2),
    Sketcher.Constraint("Horizontal", 2, 2, 4, 2),
    Sketcher.Constraint("Horizontal", 12, 2, 14, 2),
    Sketcher.Constraint("Vertical", 6, 2, 10, 2),
    Sketcher.Constraint("Vertical", 8, 2, 12, 2),
    Sketcher.Constraint("Vertical", 3, 2, 14, 2),
    Sketcher.Constraint("Equal", 2, 5),
    Sketcher.Constraint("Equal", 16, 6),
    Sketcher.Constraint("DistanceX", 0, 2, 0, 1, Q("11 mm")),
    Sketcher.Constraint("DistanceX", 7, 1, 7, 2, Q("9 mm")),
    Sketcher.Constraint("DistanceY", 1, 1, 1, 2, Q("19 mm")),
    Sketcher.Constraint("DistanceY", 11, 1, 11, 2, Q("80 mm")),
    Sketcher.Constraint("DistanceY", 15, 2, 15, 1, Q("69 mm")),
    Sketcher.Constraint("DistanceX", -1, 1, 4, 2, Q("111 mm")),
    Sketcher.Constraint("DistanceY", -1, 1, 10, 2, Q("130 mm")),
])
sketch20.setExpression("Constraints[46]", "Params.sketch20_width")
sketch20.setExpression("Constraints[47]", "Params.sketch20_width2")
sketch20.setExpression("Constraints[48]", "Params.sketch20_height")
sketch20.setExpression("Constraints[49]", "Params.sketch20_height2")
sketch20.setExpression("Constraints[50]", "Params.sketch20_height3")
pad6 = body.newObject("PartDesign::Pad", "Pad005")
pad6.Profile = sketch20
pad6.setExpression("Length", "Params.pad6_length")
pad6.Reversed = True

doc.recompute()
